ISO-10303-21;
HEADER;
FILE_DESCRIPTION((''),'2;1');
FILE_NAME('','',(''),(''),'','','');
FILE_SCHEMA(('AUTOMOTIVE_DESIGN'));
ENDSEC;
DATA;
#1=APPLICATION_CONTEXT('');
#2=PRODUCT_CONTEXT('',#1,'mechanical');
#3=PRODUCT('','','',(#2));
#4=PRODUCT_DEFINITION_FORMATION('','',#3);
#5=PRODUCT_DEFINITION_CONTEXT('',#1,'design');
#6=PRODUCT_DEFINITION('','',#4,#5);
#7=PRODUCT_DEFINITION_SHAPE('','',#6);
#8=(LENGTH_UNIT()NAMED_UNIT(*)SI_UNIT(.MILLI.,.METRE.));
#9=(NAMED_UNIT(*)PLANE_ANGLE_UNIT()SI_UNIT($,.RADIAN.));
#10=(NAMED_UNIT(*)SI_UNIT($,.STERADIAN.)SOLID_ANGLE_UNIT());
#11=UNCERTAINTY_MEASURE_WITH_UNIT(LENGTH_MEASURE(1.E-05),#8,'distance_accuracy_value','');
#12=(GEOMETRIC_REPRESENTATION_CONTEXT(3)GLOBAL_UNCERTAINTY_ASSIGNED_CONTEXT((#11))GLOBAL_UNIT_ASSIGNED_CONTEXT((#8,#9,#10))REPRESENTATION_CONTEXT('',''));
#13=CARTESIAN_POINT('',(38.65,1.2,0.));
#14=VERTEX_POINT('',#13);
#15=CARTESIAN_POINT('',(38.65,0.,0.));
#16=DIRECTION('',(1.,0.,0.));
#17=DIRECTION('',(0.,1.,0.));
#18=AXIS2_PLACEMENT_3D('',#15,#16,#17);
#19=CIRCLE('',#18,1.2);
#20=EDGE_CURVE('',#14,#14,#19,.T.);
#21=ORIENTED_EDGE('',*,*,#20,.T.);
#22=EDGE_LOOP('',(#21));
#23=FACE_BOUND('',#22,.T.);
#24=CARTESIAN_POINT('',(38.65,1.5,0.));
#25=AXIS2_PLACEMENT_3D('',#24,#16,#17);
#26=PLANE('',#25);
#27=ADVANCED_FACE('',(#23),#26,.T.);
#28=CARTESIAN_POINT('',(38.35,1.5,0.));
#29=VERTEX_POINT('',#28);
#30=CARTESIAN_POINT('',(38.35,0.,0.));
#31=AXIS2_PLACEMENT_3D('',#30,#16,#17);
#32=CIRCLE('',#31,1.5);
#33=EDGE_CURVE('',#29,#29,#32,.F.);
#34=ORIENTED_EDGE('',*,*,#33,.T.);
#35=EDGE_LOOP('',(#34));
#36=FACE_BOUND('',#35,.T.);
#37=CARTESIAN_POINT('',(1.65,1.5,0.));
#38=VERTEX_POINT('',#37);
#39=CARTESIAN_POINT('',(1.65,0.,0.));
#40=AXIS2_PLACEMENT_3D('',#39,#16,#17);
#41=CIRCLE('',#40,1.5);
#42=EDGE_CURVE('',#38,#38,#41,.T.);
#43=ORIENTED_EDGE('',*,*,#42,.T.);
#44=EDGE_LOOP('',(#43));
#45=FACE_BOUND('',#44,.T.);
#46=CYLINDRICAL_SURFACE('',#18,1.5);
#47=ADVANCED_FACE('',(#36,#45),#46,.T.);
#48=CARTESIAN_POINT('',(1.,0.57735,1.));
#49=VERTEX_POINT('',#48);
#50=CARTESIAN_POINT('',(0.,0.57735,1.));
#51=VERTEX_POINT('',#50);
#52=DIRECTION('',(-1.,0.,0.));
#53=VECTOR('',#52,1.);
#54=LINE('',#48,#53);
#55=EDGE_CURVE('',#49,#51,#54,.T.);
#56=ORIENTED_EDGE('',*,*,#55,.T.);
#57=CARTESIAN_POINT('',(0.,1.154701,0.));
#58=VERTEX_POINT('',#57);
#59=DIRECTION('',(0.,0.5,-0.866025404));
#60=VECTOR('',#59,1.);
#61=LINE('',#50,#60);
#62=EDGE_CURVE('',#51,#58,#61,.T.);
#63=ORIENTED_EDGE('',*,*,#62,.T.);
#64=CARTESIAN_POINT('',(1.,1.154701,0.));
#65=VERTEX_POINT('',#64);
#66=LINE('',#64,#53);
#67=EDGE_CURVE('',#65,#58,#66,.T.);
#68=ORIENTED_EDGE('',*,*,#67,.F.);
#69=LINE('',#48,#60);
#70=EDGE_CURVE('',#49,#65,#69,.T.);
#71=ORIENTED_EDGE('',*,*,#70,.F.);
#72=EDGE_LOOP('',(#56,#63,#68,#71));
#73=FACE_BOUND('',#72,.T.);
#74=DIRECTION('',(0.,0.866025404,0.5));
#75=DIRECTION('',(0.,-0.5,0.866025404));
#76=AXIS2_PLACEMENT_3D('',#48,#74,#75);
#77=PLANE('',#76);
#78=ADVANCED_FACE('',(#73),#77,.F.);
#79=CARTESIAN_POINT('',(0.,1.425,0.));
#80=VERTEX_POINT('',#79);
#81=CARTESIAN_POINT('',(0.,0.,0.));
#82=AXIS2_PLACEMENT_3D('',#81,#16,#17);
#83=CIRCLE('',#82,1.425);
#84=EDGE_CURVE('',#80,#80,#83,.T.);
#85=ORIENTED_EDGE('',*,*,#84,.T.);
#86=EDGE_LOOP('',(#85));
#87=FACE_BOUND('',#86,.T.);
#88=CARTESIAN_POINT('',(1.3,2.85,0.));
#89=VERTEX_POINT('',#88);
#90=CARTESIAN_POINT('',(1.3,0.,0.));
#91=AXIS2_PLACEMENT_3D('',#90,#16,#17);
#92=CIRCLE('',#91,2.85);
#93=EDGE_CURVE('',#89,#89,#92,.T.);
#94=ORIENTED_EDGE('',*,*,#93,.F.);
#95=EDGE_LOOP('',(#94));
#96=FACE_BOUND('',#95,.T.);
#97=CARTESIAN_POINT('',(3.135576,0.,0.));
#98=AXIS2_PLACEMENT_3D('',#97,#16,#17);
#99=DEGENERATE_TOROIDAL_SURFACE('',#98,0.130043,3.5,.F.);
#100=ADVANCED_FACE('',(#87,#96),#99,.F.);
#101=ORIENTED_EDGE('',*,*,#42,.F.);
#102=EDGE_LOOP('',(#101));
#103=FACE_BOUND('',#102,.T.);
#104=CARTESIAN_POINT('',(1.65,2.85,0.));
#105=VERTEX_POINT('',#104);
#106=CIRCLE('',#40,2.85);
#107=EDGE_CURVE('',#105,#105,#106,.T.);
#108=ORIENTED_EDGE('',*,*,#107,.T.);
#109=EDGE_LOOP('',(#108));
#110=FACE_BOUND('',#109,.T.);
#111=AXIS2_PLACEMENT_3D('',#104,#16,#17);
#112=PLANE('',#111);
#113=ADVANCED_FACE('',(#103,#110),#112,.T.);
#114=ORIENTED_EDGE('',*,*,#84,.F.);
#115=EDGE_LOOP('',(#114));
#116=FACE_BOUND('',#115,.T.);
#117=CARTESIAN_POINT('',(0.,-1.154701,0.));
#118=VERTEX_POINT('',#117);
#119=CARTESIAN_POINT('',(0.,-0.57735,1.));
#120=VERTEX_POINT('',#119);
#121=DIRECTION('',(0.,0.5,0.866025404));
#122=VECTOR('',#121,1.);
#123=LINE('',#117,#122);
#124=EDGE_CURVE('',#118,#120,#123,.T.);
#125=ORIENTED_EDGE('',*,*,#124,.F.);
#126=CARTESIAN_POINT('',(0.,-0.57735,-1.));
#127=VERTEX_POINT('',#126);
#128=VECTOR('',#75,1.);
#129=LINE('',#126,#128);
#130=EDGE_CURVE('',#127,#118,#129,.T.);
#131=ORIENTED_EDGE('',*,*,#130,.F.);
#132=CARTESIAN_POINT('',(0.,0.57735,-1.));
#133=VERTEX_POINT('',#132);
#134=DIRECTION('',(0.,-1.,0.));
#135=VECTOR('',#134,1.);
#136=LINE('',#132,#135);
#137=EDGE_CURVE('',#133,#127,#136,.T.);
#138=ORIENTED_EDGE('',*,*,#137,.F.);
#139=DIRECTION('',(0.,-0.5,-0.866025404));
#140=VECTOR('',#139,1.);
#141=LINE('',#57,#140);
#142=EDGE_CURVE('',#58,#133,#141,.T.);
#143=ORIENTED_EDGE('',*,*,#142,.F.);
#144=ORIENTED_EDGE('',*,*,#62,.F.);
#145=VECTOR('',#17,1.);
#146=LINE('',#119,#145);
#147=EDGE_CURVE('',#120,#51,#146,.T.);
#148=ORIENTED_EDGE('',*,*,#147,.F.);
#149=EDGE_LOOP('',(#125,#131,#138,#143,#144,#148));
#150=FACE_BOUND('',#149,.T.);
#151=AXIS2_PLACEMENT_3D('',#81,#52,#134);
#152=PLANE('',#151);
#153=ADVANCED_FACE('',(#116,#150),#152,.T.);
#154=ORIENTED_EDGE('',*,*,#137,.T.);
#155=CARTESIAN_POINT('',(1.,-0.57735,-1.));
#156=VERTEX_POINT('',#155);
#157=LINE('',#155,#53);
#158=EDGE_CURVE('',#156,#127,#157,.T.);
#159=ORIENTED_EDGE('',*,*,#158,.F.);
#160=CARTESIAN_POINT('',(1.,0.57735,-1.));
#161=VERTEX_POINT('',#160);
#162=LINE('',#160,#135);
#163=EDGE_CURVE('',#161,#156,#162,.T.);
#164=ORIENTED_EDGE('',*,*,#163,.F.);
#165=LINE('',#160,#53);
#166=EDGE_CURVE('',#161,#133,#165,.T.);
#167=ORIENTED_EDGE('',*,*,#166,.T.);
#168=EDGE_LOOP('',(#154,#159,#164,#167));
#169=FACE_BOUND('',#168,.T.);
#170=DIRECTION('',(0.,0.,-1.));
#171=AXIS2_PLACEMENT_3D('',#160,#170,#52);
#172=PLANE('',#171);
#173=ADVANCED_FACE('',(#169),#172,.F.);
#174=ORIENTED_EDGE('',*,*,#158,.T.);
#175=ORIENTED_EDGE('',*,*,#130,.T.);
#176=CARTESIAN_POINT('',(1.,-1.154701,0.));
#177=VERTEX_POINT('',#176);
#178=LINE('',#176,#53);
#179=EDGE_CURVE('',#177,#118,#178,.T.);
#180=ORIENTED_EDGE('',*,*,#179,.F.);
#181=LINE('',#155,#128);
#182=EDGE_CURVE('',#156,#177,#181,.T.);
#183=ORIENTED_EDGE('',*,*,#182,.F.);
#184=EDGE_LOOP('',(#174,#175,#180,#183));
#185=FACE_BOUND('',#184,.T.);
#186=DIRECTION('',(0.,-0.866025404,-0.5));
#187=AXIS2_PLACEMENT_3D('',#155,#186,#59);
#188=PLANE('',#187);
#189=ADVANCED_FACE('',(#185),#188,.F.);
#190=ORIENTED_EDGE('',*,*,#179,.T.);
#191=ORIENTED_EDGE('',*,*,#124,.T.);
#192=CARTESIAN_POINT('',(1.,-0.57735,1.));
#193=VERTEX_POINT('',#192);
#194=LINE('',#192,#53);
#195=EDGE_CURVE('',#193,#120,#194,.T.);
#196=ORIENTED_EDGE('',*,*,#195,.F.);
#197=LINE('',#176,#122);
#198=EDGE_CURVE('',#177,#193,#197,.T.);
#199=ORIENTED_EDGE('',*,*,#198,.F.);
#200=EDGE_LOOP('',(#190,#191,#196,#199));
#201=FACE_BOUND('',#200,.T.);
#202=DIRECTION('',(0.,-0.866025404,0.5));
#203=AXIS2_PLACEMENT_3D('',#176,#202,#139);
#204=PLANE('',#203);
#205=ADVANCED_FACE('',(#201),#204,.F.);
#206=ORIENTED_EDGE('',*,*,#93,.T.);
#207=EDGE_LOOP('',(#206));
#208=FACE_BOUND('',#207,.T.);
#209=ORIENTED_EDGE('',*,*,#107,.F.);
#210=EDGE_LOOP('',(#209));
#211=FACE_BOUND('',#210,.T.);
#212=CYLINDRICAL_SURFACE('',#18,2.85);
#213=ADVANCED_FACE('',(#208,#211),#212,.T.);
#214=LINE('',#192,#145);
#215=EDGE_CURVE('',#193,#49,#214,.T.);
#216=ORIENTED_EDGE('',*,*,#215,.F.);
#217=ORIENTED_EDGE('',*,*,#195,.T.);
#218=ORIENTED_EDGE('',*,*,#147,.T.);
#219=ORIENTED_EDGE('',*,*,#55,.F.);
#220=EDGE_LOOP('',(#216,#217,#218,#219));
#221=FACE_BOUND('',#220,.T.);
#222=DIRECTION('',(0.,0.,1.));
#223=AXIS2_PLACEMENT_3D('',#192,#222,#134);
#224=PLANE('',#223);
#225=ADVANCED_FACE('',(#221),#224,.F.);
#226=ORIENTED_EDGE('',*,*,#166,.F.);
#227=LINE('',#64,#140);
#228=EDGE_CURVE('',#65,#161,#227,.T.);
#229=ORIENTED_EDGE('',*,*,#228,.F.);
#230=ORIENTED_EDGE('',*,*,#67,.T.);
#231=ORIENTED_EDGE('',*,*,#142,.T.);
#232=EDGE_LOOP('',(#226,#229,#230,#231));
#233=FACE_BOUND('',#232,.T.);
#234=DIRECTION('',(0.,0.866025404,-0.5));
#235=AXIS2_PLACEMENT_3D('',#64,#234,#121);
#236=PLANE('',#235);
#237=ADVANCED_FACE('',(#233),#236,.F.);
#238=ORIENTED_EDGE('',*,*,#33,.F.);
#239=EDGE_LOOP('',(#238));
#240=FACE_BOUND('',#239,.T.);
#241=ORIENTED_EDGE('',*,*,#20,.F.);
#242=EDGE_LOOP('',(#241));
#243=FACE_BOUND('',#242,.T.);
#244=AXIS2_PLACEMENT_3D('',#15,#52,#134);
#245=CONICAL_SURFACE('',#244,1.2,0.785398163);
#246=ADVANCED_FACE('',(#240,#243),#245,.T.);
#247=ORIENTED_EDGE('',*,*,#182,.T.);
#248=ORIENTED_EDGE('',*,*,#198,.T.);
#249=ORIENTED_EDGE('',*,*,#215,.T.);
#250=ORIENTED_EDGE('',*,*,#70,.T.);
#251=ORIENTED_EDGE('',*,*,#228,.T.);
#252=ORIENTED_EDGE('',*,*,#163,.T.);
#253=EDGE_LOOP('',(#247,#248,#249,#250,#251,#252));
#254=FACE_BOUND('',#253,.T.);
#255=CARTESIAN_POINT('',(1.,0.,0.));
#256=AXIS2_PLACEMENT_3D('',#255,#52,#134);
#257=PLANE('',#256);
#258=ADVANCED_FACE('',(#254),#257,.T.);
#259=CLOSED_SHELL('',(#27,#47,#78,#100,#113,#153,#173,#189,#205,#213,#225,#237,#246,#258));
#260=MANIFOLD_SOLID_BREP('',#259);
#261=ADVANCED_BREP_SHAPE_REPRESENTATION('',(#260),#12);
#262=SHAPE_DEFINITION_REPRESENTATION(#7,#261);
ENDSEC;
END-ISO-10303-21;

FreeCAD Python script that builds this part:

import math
import FreeCAD as App
import Part
import Sketcher
Q = App.Units.Quantity


def edges_at(feature, points):
    """Names of the edges that pass closest to the given points."""
    edges = feature.Shape.Edges
    near = lambda p: min(range(len(edges)), key=lambda i: edges[i].distToShape(Part.Vertex(*p))[0])
    return sorted({f"Edge{near(p) + 1}" for p in points})

doc = App.newDocument("Part")
body = doc.addObject("PartDesign::Body", "Body")

sketch1 = body.newObject("Sketcher::SketchObject", "Sketch")
sketch1.AttachmentSupport = (doc.getObject("XY_Plane"), [""])
sketch1.MapMode = "FlatFace"
sketch1.addGeometry([
    Part.LineSegment(App.Vector(0, 0, 0), App.Vector(38.65, 0, 0)),
    Part.LineSegment(App.Vector(38.65, 0, 0), App.Vector(38.65, 1.5, 0)),
    Part.LineSegment(App.Vector(38.65, 1.5, 0), App.Vector(1.65, 1.5, 0)),
    Part.LineSegment(App.Vector(1.65, 1.5, 0), App.Vector(1.65, 2.85, 0)),
    Part.LineSegment(App.Vector(1.65, 2.85, 0), App.Vector(1.3, 2.85, 0)),
    Part.ArcOfCircle(Part.Circle(App.Vector(3.135576, -0.130043, 0), App.Vector(0, 0, 1), 3.5), math.radians(121.631253), math.radians(153.621558)),
    Part.LineSegment(App.Vector(0, 1.425, 0), App.Vector(0, 0, 0)),
], False)
sketch1.addConstraint([
    Sketcher.Constraint("Coincident", 0, 2, 1, 1),
    Sketcher.Constraint("Coincident", 1, 2, 2, 1),
    Sketcher.Constraint("Coincident", 2, 2, 3, 1),
    Sketcher.Constraint("Coincident", 3, 2, 4, 1),
    Sketcher.Constraint("Coincident", 4, 2, 5, 1),
    Sketcher.Constraint("Coincident", 5, 2, 6, 1),
    Sketcher.Constraint("Coincident", 6, 2, 0, 1),
    Sketcher.Constraint("Horizontal", 0),
    Sketcher.Constraint("Vertical", 1),
    Sketcher.Constraint("Horizontal", 2),
    Sketcher.Constraint("Vertical", 3),
    Sketcher.Constraint("Horizontal", 4),
    Sketcher.Constraint("Vertical", 6),
    Sketcher.Constraint("Coincident", 6, 2, -1, 1),
    Sketcher.Constraint("Radius", 5, Q("3.5 mm")),
    Sketcher.Constraint("DistanceX", 2, 2, 2, 1, Q("37 mm")),
    Sketcher.Constraint("DistanceY", 1, 1, 1, 2, Q("1.5 mm")),
    Sketcher.Constraint("DistanceX", 0, 1, 0, 2, Q("38.65 mm")),
    Sketcher.Constraint("DistanceX", 4, 2, 4, 1, Q("0.35 mm")),
    Sketcher.Constraint("DistanceY", 3, 1, 3, 2, Q("1.35 mm")),
    Sketcher.Constraint("DistanceY", 6, 2, 6, 1, Q("1.425 mm")),
])
revolution = body.newObject("PartDesign::Revolution", "Revolution")
revolution.Profile = sketch1
revolution.ReferenceAxis = (sketch1, ["H_Axis"])
revolution.Angle = 360
doc.recompute()

chamfer = body.newObject("PartDesign::Chamfer", "Chamfer")
chamfer.Base = (revolution, edges_at(revolution, [(38.65, -1.5, 0)]))
chamfer.Size = 0.3

sketch2 = body.newObject("Sketcher::SketchObject", "Sketch001")
sketch2.AttachmentSupport = (doc.getObject("YZ_Plane"), [""])
sketch2.MapMode = "FlatFace"
sketch2.addGeometry([
    Part.LineSegment(App.Vector(1.154701, 0, 0), App.Vector(0.57735, -1, 0)),
    Part.LineSegment(App.Vector(0.57735, -1, 0), App.Vector(-0.57735, -1, 0)),
    Part.LineSegment(App.Vector(-0.57735, -1, 0), App.Vector(-1.154701, 0, 0)),
    Part.LineSegment(App.Vector(-1.154701, 0, 0), App.Vector(-0.57735, 1, 0)),
    Part.LineSegment(App.Vector(-0.57735, 1, 0), App.Vector(0.57735, 1, 0)),
    Part.LineSegment(App.Vector(0.57735, 1, 0), App.Vector(1.154701, 0, 0)),
], False)
sketch2.addConstraint([
    Sketcher.Constraint("Coincident", 0, 2, 1, 1),
    Sketcher.Constraint("Coincident", 1, 2, 2, 1),
    Sketcher.Constraint("Coincident", 2, 2, 3, 1),
    Sketcher.Constraint("Coincident", 3, 2, 4, 1),
    Sketcher.Constraint("Coincident", 4, 2, 5, 1),
    Sketcher.Constraint("Coincident", 5, 2, 0, 1),
    Sketcher.Constraint("Horizontal", 1),
    Sketcher.Constraint("Horizontal", 4),
    Sketcher.Constraint("Symmetric", 0, 2, 3, 2, -1, 1),
    Sketcher.Constraint("Symmetric", 2, 2, 5, 2, -1, 1),
    Sketcher.Constraint("PointOnObject", 2, 2, -1),
    Sketcher.Constraint("Parallel", 2, 5),
    Sketcher.Constraint("Vertical", 1, 2, 3, 2),
    Sketcher.Constraint("Angle", 0, Q("-120 deg")),
    Sketcher.Constraint("DistanceY", 0, 2, -1, 1, Q("1 mm")),
    Sketcher.Constraint("DistanceX", 1, 2, 1, 1, Q("1.154701 mm")),
])
pocket1 = body.newObject("PartDesign::Pocket", "Pocket")
pocket1.Profile = sketch2
pocket1.Length = 1
pocket1.Reversed = True

doc.recompute()
